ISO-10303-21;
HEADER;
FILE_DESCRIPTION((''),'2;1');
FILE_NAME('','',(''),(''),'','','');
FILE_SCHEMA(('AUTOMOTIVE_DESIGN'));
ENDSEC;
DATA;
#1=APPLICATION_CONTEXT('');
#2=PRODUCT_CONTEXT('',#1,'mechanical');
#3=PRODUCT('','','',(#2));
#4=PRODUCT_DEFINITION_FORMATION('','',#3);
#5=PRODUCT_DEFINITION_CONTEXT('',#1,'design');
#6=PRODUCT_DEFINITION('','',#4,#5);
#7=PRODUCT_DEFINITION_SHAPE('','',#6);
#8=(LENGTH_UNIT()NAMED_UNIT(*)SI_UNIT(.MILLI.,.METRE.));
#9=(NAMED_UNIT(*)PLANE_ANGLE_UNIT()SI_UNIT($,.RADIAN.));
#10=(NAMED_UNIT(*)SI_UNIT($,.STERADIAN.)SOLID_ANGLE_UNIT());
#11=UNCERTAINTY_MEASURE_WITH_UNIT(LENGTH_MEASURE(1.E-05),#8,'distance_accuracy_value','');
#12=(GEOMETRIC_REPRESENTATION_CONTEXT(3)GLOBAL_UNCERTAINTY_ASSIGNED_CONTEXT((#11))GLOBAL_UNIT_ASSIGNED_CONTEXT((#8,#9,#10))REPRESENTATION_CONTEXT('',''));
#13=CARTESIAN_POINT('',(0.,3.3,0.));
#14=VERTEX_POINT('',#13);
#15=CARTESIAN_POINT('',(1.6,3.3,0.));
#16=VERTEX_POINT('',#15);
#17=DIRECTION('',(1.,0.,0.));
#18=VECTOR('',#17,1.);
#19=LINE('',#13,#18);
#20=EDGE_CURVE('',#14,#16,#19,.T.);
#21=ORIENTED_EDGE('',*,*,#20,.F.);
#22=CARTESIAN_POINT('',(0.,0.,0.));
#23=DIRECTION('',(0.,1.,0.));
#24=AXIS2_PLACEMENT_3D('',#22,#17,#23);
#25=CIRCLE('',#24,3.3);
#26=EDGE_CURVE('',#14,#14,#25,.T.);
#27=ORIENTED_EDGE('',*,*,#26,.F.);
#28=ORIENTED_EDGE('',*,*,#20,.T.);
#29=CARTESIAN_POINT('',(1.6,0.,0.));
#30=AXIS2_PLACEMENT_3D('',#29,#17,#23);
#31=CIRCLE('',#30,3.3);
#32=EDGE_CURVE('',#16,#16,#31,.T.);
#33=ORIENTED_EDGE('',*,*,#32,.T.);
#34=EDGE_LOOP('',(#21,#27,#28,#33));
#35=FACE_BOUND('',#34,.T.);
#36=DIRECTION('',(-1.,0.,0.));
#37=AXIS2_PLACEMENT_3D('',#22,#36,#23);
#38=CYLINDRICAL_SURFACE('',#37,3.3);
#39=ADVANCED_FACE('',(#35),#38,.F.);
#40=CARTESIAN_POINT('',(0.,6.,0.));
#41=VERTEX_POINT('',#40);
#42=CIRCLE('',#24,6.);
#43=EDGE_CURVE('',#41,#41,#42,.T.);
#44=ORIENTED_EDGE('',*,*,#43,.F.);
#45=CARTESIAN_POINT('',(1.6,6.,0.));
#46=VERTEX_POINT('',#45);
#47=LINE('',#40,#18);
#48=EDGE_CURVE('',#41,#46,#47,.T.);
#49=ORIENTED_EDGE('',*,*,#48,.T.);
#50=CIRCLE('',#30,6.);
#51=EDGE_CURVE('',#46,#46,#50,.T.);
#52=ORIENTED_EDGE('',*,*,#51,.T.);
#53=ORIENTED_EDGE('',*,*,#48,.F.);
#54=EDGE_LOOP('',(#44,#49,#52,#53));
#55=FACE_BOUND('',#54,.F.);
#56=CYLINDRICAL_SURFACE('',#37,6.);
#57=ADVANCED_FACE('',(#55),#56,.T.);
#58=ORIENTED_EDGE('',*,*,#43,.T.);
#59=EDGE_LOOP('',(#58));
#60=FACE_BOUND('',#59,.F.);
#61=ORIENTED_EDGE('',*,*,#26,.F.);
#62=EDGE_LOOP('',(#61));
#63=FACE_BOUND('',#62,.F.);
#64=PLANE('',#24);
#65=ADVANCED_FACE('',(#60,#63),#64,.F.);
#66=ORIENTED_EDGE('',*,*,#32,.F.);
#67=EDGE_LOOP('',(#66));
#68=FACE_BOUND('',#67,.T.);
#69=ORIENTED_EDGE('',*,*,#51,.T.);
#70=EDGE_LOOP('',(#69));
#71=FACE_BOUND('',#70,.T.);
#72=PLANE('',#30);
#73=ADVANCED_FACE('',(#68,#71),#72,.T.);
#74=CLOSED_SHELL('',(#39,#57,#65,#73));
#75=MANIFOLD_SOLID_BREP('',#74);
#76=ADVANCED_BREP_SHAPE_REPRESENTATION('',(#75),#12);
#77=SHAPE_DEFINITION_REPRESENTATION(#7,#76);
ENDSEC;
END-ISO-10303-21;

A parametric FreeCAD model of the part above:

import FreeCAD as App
import Part
import Sketcher
from FreeCAD import Vector

doc = App.newDocument("Part")
params = doc.addObject("Spreadsheet::Sheet", "Params")
for row, (alias, value) in enumerate([
    ("sketch1_diameter", "12 mm"),
    ("sketch1_diameter2", "6.6 mm"),
    ("pad1_length", "1.6 mm"),
], start=1):
    params.set(f"A{row}", alias)
    params.set(f"B{row}", "=" + value)
    params.setAlias(f"B{row}", alias)

body = doc.addObject("PartDesign::Body", "Body")

# Sketch on YZ plane
sketch1 = body.newObject("Sketcher::SketchObject", "Sketch")
sketch1.AttachmentSupport = (doc.getObject("YZ_Plane"), [""])
sketch1.MapMode = "FlatFace"
sketch1.addGeometry([
    Part.Circle(Vector(0, 0, 0), Vector(0, 0, 1), 6),
    Part.Circle(Vector(0, 0, 0), Vector(0, 0, 1), 3.3),
], False)
sketch1.addConstraint([
    Sketcher.Constraint("Coincident", 0, 3, -1, 1),
    Sketcher.Constraint("Coincident", 1, 3, -1, 1),
    Sketcher.Constraint("Diameter", 0, 12.0),
    Sketcher.Constraint("Diameter", 1, 6.6),
])
sketch1.setExpression("Constraints[2]", "Params.sketch1_diameter")
sketch1.setExpression("Constraints[3]", "Params.sketch1_diameter2")
pad1 = body.newObject("PartDesign::Pad", "Pad")
pad1.Profile = sketch1
pad1.setExpression("Length", "Params.pad1_length")

doc.recompute()
